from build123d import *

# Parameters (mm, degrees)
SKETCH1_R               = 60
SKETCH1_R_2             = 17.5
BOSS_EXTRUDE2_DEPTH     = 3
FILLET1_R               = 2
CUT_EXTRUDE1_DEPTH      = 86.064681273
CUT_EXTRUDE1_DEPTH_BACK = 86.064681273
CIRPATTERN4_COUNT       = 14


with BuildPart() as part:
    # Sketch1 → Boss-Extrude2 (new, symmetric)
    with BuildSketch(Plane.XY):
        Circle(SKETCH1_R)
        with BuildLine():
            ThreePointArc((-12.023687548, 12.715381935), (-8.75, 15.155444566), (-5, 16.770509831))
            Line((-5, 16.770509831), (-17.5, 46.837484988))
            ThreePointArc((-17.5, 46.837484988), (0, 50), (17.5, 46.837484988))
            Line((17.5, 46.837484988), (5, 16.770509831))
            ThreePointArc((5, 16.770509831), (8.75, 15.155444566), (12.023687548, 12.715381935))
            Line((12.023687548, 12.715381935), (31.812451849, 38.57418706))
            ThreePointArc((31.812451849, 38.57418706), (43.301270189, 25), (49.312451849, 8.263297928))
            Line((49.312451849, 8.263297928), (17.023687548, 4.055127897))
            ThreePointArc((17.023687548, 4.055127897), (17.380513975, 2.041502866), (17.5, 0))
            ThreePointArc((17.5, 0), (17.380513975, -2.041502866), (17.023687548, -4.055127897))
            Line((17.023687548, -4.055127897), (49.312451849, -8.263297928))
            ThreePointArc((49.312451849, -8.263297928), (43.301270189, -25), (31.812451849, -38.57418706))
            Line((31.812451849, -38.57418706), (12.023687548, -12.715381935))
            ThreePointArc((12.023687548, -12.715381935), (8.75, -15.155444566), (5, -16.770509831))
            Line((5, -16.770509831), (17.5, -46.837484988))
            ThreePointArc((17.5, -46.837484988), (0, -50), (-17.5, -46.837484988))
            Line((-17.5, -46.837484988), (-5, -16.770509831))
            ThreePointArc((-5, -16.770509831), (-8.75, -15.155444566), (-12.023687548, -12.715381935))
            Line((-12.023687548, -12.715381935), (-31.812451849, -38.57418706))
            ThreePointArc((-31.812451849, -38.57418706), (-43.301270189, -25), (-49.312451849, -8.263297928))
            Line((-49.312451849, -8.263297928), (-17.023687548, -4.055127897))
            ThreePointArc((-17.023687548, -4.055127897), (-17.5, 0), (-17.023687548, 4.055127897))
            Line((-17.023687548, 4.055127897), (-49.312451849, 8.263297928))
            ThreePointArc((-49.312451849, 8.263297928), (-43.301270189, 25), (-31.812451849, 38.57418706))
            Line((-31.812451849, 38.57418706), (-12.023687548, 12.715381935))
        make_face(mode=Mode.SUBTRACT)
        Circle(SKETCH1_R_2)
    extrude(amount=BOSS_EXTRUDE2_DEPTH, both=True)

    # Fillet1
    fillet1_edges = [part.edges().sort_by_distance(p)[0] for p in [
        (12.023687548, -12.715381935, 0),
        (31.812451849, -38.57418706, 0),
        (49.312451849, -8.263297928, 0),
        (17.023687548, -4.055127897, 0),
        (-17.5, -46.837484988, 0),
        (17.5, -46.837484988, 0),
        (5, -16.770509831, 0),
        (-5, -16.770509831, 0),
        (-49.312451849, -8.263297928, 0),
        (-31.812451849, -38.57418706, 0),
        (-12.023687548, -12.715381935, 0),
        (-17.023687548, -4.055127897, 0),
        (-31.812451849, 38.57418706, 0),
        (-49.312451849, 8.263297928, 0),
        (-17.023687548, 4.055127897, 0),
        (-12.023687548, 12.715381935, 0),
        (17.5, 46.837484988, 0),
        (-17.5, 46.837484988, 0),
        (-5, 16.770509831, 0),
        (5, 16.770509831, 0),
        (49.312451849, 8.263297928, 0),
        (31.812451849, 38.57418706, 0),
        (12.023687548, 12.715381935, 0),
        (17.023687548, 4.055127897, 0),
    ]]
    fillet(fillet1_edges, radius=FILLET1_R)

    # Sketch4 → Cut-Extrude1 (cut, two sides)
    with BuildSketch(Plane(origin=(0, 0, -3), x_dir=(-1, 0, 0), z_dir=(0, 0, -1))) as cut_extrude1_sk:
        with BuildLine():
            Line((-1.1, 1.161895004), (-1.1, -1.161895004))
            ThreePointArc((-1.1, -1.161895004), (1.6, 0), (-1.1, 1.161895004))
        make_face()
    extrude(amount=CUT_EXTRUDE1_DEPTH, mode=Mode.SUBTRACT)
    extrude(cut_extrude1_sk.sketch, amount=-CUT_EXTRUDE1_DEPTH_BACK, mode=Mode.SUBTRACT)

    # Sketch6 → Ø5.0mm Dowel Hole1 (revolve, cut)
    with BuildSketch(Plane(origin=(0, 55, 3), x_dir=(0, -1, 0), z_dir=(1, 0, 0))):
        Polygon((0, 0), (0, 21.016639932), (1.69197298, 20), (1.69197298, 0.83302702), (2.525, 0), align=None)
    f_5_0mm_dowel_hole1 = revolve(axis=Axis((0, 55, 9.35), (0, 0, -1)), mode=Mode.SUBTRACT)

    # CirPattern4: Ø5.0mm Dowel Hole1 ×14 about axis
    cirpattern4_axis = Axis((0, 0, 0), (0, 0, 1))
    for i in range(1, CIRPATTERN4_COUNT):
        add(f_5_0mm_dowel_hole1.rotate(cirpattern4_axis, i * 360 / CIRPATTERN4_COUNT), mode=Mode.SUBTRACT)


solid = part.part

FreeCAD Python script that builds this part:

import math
import FreeCAD as App
import Part
import Sketcher
Q = App.Units.Quantity


def edges_at(feature, points):
    """Names of the edges that pass closest to the given points."""
    edges = feature.Shape.Edges
    near = lambda p: min(range(len(edges)), key=lambda i: edges[i].distToShape(Part.Vertex(*p))[0])
    return sorted({f"Edge{near(p) + 1}" for p in points})

doc = App.newDocument("Part")
params = doc.addObject("Spreadsheet::Sheet", "Params")
for row, (alias, value) in enumerate([
    ("sketch1_diameter", "120 mm"),
    ("sketch1_radius", "50 mm"),
    ("sketch1_radius2", "17.5 mm"),
    ("pad1_length", "6 mm"),
    ("fillet_radius", "2 mm"),
    ("sketch2_radius", "1.6 mm"),
    ("groove_angle", "360 deg"),
], start=1):
    params.set(f"A{row}", alias)
    params.set(f"B{row}", "=" + value)
    params.setAlias(f"B{row}", alias)

body = doc.addObject("PartDesign::Body", "Body")

# Sketch on XY plane
sketch1 = body.newObject("Sketcher::SketchObject", "Sketch")
sketch1.AttachmentSupport = (doc.getObject("XY_Plane"), [""])
sketch1.MapMode = "FlatFace"
sketch1.addGeometry([
    Part.Circle(App.Vector(0, 0, 0), App.Vector(0, 0, 1), 60),  # 0
    Part.LineSegment(App.Vector(-31.812452, 38.574187, 0), App.Vector(-12.023688, 12.715382, 0)),  # 1
    Part.ArcOfCircle(Part.Circle(App.Vector(0, 0, 0), App.Vector(0, 0, 1), 17.5), math.radians(133.39845), math.radians(166.60155)),  # 2
    Part.LineSegment(App.Vector(-17.023688, 4.055128, 0), App.Vector(-49.312452, 8.263298, 0)),  # 3
    Part.ArcOfCircle(Part.Circle(App.Vector(0, 0, 0), App.Vector(0, 0, 1), 50), math.radians(129.512685), math.radians(170.487315)),  # 4
    Part.LineSegment(App.Vector(-49.312452, -8.263298, 0), App.Vector(-17.023688, -4.055128, 0)),  # 5
    Part.ArcOfCircle(Part.Circle(App.Vector(0, 0, 0), App.Vector(0, 0, 1), 17.5), math.radians(-166.60155), math.radians(-133.39845)),  # 6
    Part.LineSegment(App.Vector(-12.023688, -12.715382, 0), App.Vector(-31.812452, -38.574187, 0)),  # 7
    Part.ArcOfCircle(Part.Circle(App.Vector(0, 0, 0), App.Vector(0, 0, 1), 50), math.radians(-170.487315), math.radians(-129.512685)),  # 8
    Part.LineSegment(App.Vector(-17.5, -46.837485, 0), App.Vector(-5, -16.77051, 0)),  # 9
    Part.ArcOfCircle(Part.Circle(App.Vector(0, 0, 0), App.Vector(0, 0, 1), 17.5), math.radians(-106.60155), math.radians(-73.39845)),  # 10
    Part.LineSegment(App.Vector(5, -16.77051, 0), App.Vector(17.5, -46.837485, 0)),  # 11
    Part.ArcOfCircle(Part.Circle(App.Vector(0, 0, 0), App.Vector(0, 0, 1), 50), math.radians(-110.487315), math.radians(-69.512685)),  # 12
    Part.LineSegment(App.Vector(31.812452, -38.574187, 0), App.Vector(12.023688, -12.715382, 0)),  # 13
    Part.ArcOfCircle(Part.Circle(App.Vector(0, 0, 0), App.Vector(0, 0, 1), 17.5), math.radians(-46.60155), math.radians(-13.39845)),  # 14
    Part.LineSegment(App.Vector(17.023688, -4.055128, 0), App.Vector(49.312452, -8.263298, 0)),  # 15
    Part.ArcOfCircle(Part.Circle(App.Vector(0, 0, 0), App.Vector(0, 0, 1), 50), math.radians(-50.487315), math.radians(-9.512685)),  # 16
    Part.LineSegment(App.Vector(49.312452, 8.263298, 0), App.Vector(17.023688, 4.055128, 0)),  # 17
    Part.ArcOfCircle(Part.Circle(App.Vector(0, 0, 0), App.Vector(0, 0, 1), 17.5), math.radians(13.39845), math.radians(46.60155)),  # 18
    Part.LineSegment(App.Vector(12.023688, 12.715382, 0), App.Vector(31.812452, 38.574187, 0)),  # 19
    Part.ArcOfCircle(Part.Circle(App.Vector(0, 0, 0), App.Vector(0, 0, 1), 50), math.radians(9.512685), math.radians(50.487315)),  # 20
    Part.LineSegment(App.Vector(17.5, 46.837485, 0), App.Vector(5, 16.77051, 0)),  # 21
    Part.ArcOfCircle(Part.Circle(App.Vector(0, 0, 0), App.Vector(0, 0, 1), 17.5), math.radians(73.39845), math.radians(106.60155)),  # 22
    Part.LineSegment(App.Vector(-5, 16.77051, 0), App.Vector(-17.5, 46.837485, 0)),  # 23
    Part.ArcOfCircle(Part.Circle(App.Vector(0, 0, 0), App.Vector(0, 0, 1), 50), math.radians(69.512685), math.radians(110.487315)),  # 24
], False)
sketch1.addConstraint([
    Sketcher.Constraint("Coincident", 1, 2, 2, 1),
    Sketcher.Constraint("Coincident", 2, 2, 3, 1),
    Sketcher.Constraint("Coincident", 3, 2, 4, 2),
    Sketcher.Constraint("Coincident", 4, 1, 1, 1),
    Sketcher.Constraint("Coincident", 5, 2, 6, 1),
    Sketcher.Constraint("Coincident", 6, 2, 7, 1),
    Sketcher.Constraint("Coincident", 7, 2, 8, 2),
    Sketcher.Constraint("Coincident", 8, 1, 5, 1),
    Sketcher.Constraint("Coincident", 9, 2, 10, 1),
    Sketcher.Constraint("Coincident", 10, 2, 11, 1),
    Sketcher.Constraint("Coincident", 11, 2, 12, 2),
    Sketcher.Constraint("Coincident", 12, 1, 9, 1),
    Sketcher.Constraint("Coincident", 13, 2, 14, 1),
    Sketcher.Constraint("Coincident", 14, 2, 15, 1),
    Sketcher.Constraint("Coincident", 15, 2, 16, 2),
    Sketcher.Constraint("Coincident", 16, 1, 13, 1),
    Sketcher.Constraint("Coincident", 17, 2, 18, 1),
    Sketcher.Constraint("Coincident", 18, 2, 19, 1),
    Sketcher.Constraint("Coincident", 19, 2, 20, 2),
    Sketcher.Constraint("Coincident", 20, 1, 17, 1),
    Sketcher.Constraint("Coincident", 21, 2, 22, 1),
    Sketcher.Constraint("Coincident", 22, 2, 23, 1),
    Sketcher.Constraint("Coincident", 23, 2, 24, 2),
    Sketcher.Constraint("Coincident", 24, 1, 21, 1),
    Sketcher.Constraint("Coincident", 0, 3, -1, 1),
    Sketcher.Constraint("Coincident", 2, 3, -1, 1),
    Sketcher.Constraint("Coincident", 4, 3, -1, 1),
    Sketcher.Constraint("Coincident", 6, 3, -1, 1),
    Sketcher.Constraint("Coincident", 8, 3, -1, 1),
    Sketcher.Constraint("Coincident", 10, 3, -1, 1),
    Sketcher.Constraint("Coincident", 12, 3, -1, 1),
    Sketcher.Constraint("Coincident", 14, 3, -1, 1),
    Sketcher.Constraint("Coincident", 16, 3, -1, 1),
    Sketcher.Constraint("Coincident", 18, 3, -1, 1),
    Sketcher.Constraint("Coincident", 20, 3, -1, 1),
    Sketcher.Constraint("Coincident", 22, 3, -1, 1),
    Sketcher.Constraint("Coincident", 24, 3, -1, 1),
    Sketcher.Constraint("Equal", 2, 6),
    Sketcher.Constraint("Equal", 4, 8),
    Sketcher.Constraint("Equal", 6, 10),
    Sketcher.Constraint("Equal", 8, 12),
    Sketcher.Constraint("Equal", 10, 14),
    Sketcher.Constraint("Equal", 12, 16),
    Sketcher.Constraint("Equal", 14, 18),
    Sketcher.Constraint("Equal", 16, 20),
    Sketcher.Constraint("Equal", 18, 22),
    Sketcher.Constraint("Equal", 20, 24),
    Sketcher.Constraint("Parallel", 1, 13),
    Sketcher.Constraint("Parallel", 3, 15),
    Sketcher.Constraint("Parallel", 5, 17),
    Sketcher.Constraint("Parallel", 7, 19),
    Sketcher.Constraint("Parallel", 9, 21),
    Sketcher.Constraint("Parallel", 11, 23),
    Sketcher.Constraint("Horizontal", 9, 2, 10, 2),
    Sketcher.Constraint("Horizontal", 11, 2, 12, 1),
    Sketcher.Constraint("Horizontal", 6, 2, 13, 2),
    Sketcher.Constraint("Horizontal", 5, 2, 14, 2),
    Sketcher.Constraint("Horizontal", 8, 1, 15, 2),
    Sketcher.Constraint("Horizontal", 7, 2, 16, 1),
    Sketcher.Constraint("Horizontal", 2, 2, 17, 2),
    Sketcher.Constraint("Horizontal", 1, 2, 18, 2),
    Sketcher.Constraint("Horizontal", 21, 2, 22, 2),
    Sketcher.Constraint("Vertical", 2, 2, 5, 2),
    Sketcher.Constraint("Vertical", 1, 2, 6, 2),
    Sketcher.Constraint("Vertical", 10, 2, 21, 2),
    Sketcher.Constraint("Equal", 1, 3),
    Sketcher.Constraint("Equal", 7, 9),
    Sketcher.Constraint("Diameter", 0, 120.0),
    Sketcher.Constraint("Radius", 4, 50.0),
    Sketcher.Constraint("Radius", 2, 17.5),
    Sketcher.Constraint("DistanceX", 9, 2, -1, 1, 5.0),
    Sketcher.Constraint("DistanceX", 2, 2, 1, 2, 5.0),
    Sketcher.Constraint("DistanceX", 12, 1, 11, 2, 35.0),
    Sketcher.Constraint("DistanceX", 8, 1, 7, 2, 17.5),
])
sketch1.setExpression("Constraints[67]", "Params.sketch1_diameter")
sketch1.setExpression("Constraints[68]", "Params.sketch1_radius")
sketch1.setExpression("Constraints[69]", "Params.sketch1_radius2")
pad1 = body.newObject("PartDesign::Pad", "Pad")
pad1.Profile = sketch1
pad1.setExpression("Length", "Params.pad1_length")
pad1.Midplane = True
doc.recompute()

fillet = body.newObject("PartDesign::Fillet", "Fillet")
fillet.Base = (pad1, edges_at(pad1, [
    (12.024, -12.715, 0),
    (31.812, -38.574, 0),
    (49.312, -8.263, 0),
    (17.024, -4.055, 0),
    (-17.5, -46.837, 0),
    (17.5, -46.837, 0),
    (5, -16.771, 0),
    (-5, -16.771, 0),
    (-49.312, -8.263, 0),
    (-31.812, -38.574, 0),
    (-12.024, -12.715, 0),
    (-17.024, -4.055, 0),
    (-31.812, 38.574, 0),
    (-49.312, 8.263, 0),
    (-17.024, 4.055, 0),
    (-12.024, 12.715, 0),
    (17.5, 46.837, 0),
    (-17.5, 46.837, 0),
    (-5, 16.771, 0),
    (5, 16.771, 0),
    (49.312, 8.263, 0),
    (31.812, 38.574, 0),
    (12.024, 12.715, 0),
    (17.024, 4.055, 0),
]))
fillet.setExpression("Radius", "Params.fillet_radius")

# Sketch on XY plane
sketch2 = body.newObject("Sketcher::SketchObject", "Sketch001")
sketch2.AttachmentSupport = (doc.getObject("XY_Plane"), [""])
sketch2.MapMode = "FlatFace"
sketch2.AttachmentOffset = App.Placement(App.Vector(0, 0, -3), App.Rotation())
sketch2.addGeometry([
    Part.LineSegment(App.Vector(1.1, 1.161895, 0), App.Vector(1.1, -1.161895, 0)),
    Part.ArcOfCircle(Part.Circle(App.Vector(0, 0, 0), App.Vector(0, 0, 1), 1.6), math.radians(46.567463), math.radians(313.432537)),
], False)
sketch2.addConstraint([
    Sketcher.Constraint("Coincident", 0, 1, 1, 1),
    Sketcher.Constraint("Coincident", 1, 2, 0, 2),
    Sketcher.Constraint("Vertical", 0),
    Sketcher.Constraint("Coincident", 1, 3, -1, 1),
    Sketcher.Constraint("Radius", 1, 1.6),
    Sketcher.Constraint("DistanceX", -1, 1, 0, 1, 1.1),
])
sketch2.setExpression("Constraints[4]", "Params.sketch2_radius")
pocket1 = body.newObject("PartDesign::Pocket", "Pocket")
pocket1.Profile = sketch2
pocket1.Type = "ThroughAll"
pocket1.Midplane = True

# Sketch on YZ plane
sketch3 = body.newObject("Sketcher::SketchObject", "Sketch002")
sketch3.AttachmentSupport = (doc.getObject("YZ_Plane"), [""])
sketch3.MapMode = "FlatFace"
sketch3.addGeometry([
    Part.LineSegment(App.Vector(55, -18.01664, 0), App.Vector(55, 3, 0)),  # 0
    Part.LineSegment(App.Vector(55, 3, 0), App.Vector(52.475, 3, 0)),  # 1
    Part.LineSegment(App.Vector(52.475, 3, 0), App.Vector(53.308027, 2.166973, 0)),  # 2
    Part.LineSegment(App.Vector(53.308027, 2.166973, 0), App.Vector(53.308027, -17, 0)),  # 3
    Part.LineSegment(App.Vector(53.308027, -17, 0), App.Vector(55, -18.01664, 0)),  # 4
], False)
sketch3.addGeometry(Part.LineSegment(App.Vector(55, 3, 0), App.Vector(55, -18.01664, 0)), True)  # axis
sketch3.addConstraint([
    Sketcher.Constraint("Coincident", 0, 2, 1, 1),
    Sketcher.Constraint("Coincident", 1, 2, 2, 1),
    Sketcher.Constraint("Coincident", 2, 2, 3, 1),
    Sketcher.Constraint("Coincident", 3, 2, 4, 1),
    Sketcher.Constraint("Coincident", 4, 2, 0, 1),
    Sketcher.Constraint("Vertical", 0),
    Sketcher.Constraint("Horizontal", 1),
    Sketcher.Constraint("Vertical", 3),
    Sketcher.Constraint("Vertical", 5),
    Sketcher.Constraint("Coincident", 5, 1, 0, 2),
    Sketcher.Constraint("Equal", 0, 5),
    Sketcher.Constraint("Angle", 2, Q("-45 deg")),
    Sketcher.Constraint("Angle", 4, Q("-31 deg")),
    Sketcher.Constraint("DistanceX", -1, 1, 0, 2, 55.0),
    Sketcher.Constraint("DistanceY", -1, 1, 0, 2, 3.0),
    Sketcher.Constraint("DistanceY", 3, 2, -1, 1, 17.0),
    Sketcher.Constraint("DistanceX", 1, 2, 1, 1, 2.525),
    Sketcher.Constraint("DistanceY", 0, 1, 0, 2, 21.01664),
])
groove = body.newObject("PartDesign::Groove", "Groove")
groove.Profile = sketch3
groove.ReferenceAxis = (sketch3, ["Axis0"])
groove.setExpression("Angle", "Params.groove_angle")
doc.recompute()

polarpattern = body.newObject("PartDesign::PolarPattern", "PolarPattern")
polarpattern.Originals = [groove]
polarpattern.Axis = (doc.getObject("Z_Axis"), [""])
polarpattern.Angle = 360
polarpattern.Occurrences = 14
body.Tip = polarpattern

doc.recompute()
